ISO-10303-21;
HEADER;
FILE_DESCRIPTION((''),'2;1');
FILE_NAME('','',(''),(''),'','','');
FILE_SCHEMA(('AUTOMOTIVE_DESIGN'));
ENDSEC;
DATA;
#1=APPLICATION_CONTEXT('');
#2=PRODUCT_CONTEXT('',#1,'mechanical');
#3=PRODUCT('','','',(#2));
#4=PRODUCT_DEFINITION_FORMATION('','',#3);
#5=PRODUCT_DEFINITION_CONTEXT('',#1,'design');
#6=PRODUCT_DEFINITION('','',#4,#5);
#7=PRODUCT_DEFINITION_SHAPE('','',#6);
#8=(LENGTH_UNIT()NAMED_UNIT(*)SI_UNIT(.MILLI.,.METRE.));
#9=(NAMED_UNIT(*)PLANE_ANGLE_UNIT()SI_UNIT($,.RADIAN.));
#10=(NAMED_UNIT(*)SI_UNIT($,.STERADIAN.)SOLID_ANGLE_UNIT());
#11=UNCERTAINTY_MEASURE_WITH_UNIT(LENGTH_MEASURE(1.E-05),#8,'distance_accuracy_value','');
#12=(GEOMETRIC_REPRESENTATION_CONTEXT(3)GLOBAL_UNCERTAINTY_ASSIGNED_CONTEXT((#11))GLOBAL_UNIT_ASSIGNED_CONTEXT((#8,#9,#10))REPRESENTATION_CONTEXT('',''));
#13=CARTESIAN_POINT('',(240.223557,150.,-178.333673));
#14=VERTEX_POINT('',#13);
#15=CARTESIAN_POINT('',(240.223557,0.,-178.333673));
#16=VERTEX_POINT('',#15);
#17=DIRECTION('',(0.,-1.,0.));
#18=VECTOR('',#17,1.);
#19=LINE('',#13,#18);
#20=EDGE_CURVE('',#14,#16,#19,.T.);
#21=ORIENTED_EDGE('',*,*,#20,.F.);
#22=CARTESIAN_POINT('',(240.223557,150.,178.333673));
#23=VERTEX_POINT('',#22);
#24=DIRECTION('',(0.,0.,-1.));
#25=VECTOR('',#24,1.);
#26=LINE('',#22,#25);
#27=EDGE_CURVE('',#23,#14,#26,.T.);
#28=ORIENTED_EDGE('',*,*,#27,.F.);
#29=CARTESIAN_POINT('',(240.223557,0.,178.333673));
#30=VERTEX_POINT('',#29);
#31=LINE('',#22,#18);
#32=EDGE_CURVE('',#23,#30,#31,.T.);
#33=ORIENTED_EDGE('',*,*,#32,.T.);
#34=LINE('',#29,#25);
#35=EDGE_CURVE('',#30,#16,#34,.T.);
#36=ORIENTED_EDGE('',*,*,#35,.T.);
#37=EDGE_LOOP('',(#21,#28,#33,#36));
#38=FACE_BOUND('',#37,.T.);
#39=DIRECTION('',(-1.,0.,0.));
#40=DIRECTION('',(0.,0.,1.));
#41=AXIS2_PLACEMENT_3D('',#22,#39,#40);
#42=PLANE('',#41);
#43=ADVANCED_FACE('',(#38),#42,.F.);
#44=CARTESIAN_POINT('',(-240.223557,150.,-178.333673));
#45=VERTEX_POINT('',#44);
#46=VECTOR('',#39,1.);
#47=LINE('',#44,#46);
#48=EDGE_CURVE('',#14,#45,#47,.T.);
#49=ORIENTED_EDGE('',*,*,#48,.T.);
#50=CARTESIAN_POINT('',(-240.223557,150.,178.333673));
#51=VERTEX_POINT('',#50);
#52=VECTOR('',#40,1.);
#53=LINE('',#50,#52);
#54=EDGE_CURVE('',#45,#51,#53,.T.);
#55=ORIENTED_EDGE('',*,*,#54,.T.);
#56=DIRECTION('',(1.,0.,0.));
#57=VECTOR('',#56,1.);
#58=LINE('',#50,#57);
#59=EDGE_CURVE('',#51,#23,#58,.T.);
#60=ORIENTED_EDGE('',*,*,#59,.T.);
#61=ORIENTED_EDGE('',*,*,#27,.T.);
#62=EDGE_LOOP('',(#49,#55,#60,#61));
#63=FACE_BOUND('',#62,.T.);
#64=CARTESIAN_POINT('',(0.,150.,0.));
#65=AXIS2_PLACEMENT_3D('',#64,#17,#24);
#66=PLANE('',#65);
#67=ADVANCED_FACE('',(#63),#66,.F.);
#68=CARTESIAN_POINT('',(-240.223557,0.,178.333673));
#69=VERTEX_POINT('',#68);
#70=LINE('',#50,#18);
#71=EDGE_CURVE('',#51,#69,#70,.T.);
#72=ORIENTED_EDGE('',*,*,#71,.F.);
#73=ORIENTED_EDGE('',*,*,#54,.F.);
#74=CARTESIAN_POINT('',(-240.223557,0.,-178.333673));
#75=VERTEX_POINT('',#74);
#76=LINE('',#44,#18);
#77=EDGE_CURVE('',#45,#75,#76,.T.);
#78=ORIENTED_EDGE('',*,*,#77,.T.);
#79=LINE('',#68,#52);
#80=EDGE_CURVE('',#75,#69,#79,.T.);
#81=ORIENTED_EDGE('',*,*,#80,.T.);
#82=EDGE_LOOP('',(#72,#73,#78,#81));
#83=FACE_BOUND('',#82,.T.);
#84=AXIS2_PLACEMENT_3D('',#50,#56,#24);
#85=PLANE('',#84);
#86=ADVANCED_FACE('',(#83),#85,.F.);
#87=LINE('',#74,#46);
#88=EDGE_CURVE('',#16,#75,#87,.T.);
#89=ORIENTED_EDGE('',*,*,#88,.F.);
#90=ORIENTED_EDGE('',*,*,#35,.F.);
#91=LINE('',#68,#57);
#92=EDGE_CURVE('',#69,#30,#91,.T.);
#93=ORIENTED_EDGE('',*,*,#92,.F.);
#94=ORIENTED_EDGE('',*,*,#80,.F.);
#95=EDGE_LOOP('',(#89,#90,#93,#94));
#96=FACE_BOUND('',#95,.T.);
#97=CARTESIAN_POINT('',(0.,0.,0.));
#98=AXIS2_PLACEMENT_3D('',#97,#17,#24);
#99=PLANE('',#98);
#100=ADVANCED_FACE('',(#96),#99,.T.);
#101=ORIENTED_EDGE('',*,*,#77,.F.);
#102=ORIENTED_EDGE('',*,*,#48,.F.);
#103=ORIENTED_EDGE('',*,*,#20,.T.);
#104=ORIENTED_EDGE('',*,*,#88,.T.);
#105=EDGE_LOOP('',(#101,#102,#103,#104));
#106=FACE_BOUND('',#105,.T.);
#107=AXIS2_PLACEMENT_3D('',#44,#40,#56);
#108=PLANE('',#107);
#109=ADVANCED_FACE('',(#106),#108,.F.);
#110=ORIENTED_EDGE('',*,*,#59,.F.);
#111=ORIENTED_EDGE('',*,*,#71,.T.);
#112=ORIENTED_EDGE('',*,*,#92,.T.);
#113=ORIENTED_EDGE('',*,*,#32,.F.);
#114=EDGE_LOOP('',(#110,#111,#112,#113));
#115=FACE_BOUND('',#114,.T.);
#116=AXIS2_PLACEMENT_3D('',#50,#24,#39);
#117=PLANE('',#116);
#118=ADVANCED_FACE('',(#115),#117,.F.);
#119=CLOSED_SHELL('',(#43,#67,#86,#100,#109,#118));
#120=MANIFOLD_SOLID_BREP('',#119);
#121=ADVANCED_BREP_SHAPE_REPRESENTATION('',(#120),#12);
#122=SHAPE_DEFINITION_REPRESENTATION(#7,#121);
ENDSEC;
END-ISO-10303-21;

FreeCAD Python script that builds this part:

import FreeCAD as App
import Part
import Sketcher
Q = App.Units.Quantity

doc = App.newDocument("Part")
body = doc.addObject("PartDesign::Body", "Body")

# Sketch on XZ plane
sketch1 = doc.addObject("Sketcher::SketchObject", "Sketch")
body.addObject(sketch1)
sketch1.AttachmentSupport = (doc.XZ_Plane, [""])
sketch1.MapMode = "FlatFace"
sketch1.addGeometry(Part.LineSegment(App.Vector(-240.223557, -178.333673, 0), App.Vector(-240.223557, 178.333673, 0)), False)
sketch1.addGeometry(Part.LineSegment(App.Vector(-240.223557, 178.333673, 0), App.Vector(240.223557, 178.333673, 0)), False)
sketch1.addGeometry(Part.LineSegment(App.Vector(240.223557, 178.333673, 0), App.Vector(240.223557, -178.333673, 0)), False)
sketch1.addGeometry(Part.LineSegment(App.Vector(240.223557, -178.333673, 0), App.Vector(-240.223557, -178.333673, 0)), False)
sketch1.addConstraint(Sketcher.Constraint("Coincident", 0, 2, 1, 1))
sketch1.addConstraint(Sketcher.Constraint("Coincident", 1, 2, 2, 1))
sketch1.addConstraint(Sketcher.Constraint("Coincident", 2, 2, 3, 1))
sketch1.addConstraint(Sketcher.Constraint("Coincident", 3, 2, 0, 1))
sketch1.addConstraint(Sketcher.Constraint("Vertical", 0))
sketch1.addConstraint(Sketcher.Constraint("Horizontal", 1))
sketch1.addConstraint(Sketcher.Constraint("Vertical", 2))
sketch1.addConstraint(Sketcher.Constraint("Horizontal", 3))
sketch1.addConstraint(Sketcher.Constraint("Symmetric", 0, 2, 2, 2, -1, 1))
sketch1.addConstraint(Sketcher.Constraint("DistanceX", 1, 1, 1, 2, Q("480.447113 mm")))
sketch1.addConstraint(Sketcher.Constraint("DistanceY", 0, 1, 0, 2, Q("356.667347 mm")))
pad1 = doc.addObject("PartDesign::Pad", "Pad")
body.addObject(pad1)
pad1.Profile = sketch1
pad1.Length = 150
pad1.Reversed = True

doc.recompute()
